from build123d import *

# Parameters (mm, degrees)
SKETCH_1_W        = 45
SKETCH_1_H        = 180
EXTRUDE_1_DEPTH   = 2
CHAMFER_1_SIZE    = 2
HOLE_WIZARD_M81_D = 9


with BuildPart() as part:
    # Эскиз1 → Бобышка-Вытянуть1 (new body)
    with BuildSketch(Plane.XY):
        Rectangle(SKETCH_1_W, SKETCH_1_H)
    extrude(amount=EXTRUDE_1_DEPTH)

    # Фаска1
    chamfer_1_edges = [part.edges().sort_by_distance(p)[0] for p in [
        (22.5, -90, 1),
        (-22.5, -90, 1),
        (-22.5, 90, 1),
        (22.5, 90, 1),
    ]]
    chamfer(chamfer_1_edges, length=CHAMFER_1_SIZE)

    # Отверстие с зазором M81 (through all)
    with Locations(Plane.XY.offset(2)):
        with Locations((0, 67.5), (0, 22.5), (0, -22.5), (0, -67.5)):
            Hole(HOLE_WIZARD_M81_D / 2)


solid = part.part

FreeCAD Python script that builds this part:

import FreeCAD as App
import Part
import Sketcher


def edges_at(feature, points):
    """Names of the edges that pass closest to the given points."""
    edges = feature.Shape.Edges
    near = lambda p: min(range(len(edges)), key=lambda i: edges[i].distToShape(Part.Vertex(*p))[0])
    return sorted({f"Edge{near(p) + 1}" for p in points})

doc = App.newDocument("Part")
params = doc.addObject("Spreadsheet::Sheet", "Params")
for row, (alias, value) in enumerate([
    ("sketch1_width", "45 mm"),
    ("sketch1_height", "180 mm"),
    ("pad1_length", "2 mm"),
    ("chamfer_size", "2 mm"),
    ("sketch2_diameter", "9 mm"),
    ("hole_diameter", "9 mm"),
], start=1):
    params.set(f"A{row}", alias)
    params.set(f"B{row}", "=" + value)
    params.setAlias(f"B{row}", alias)

body = doc.addObject("PartDesign::Body", "Body")

# Sketch on XY plane
sketch1 = doc.addObject("Sketcher::SketchObject", "Sketch")
body.addObject(sketch1)
sketch1.AttachmentSupport = (doc.XY_Plane, [""])
sketch1.MapMode = "FlatFace"
sketch1.addGeometry([
    Part.LineSegment(App.Vector(-22.5, 90, 0), App.Vector(-22.5, -90, 0)),
    Part.LineSegment(App.Vector(-22.5, -90, 0), App.Vector(22.5, -90, 0)),
    Part.LineSegment(App.Vector(22.5, -90, 0), App.Vector(22.5, 90, 0)),
    Part.LineSegment(App.Vector(22.5, 90, 0), App.Vector(-22.5, 90, 0)),
], False)
sketch1.addConstraint([
    Sketcher.Constraint("Coincident", 0, 2, 1, 1),
    Sketcher.Constraint("Coincident", 1, 2, 2, 1),
    Sketcher.Constraint("Coincident", 2, 2, 3, 1),
    Sketcher.Constraint("Coincident", 3, 2, 0, 1),
    Sketcher.Constraint("Vertical", 0),
    Sketcher.Constraint("Horizontal", 1),
    Sketcher.Constraint("Vertical", 2),
    Sketcher.Constraint("Horizontal", 3),
    Sketcher.Constraint("Symmetric", 0, 2, 2, 2, -1, 1),
    Sketcher.Constraint("DistanceX", 1, 1, 1, 2, 45.0),
    Sketcher.Constraint("DistanceY", 0, 2, 0, 1, 180.0),
])
sketch1.setExpression("Constraints[9]", "Params.sketch1_width")
sketch1.setExpression("Constraints[10]", "Params.sketch1_height")
pad1 = doc.addObject("PartDesign::Pad", "Pad")
body.addObject(pad1)
pad1.Profile = sketch1
pad1.setExpression("Length", "Params.pad1_length")
doc.recompute()

chamfer = doc.addObject("PartDesign::Chamfer", "Chamfer")
body.addObject(chamfer)
chamfer.Base = (pad1, edges_at(pad1, [
    (22.5, -90, 1),
    (-22.5, -90, 1),
    (-22.5, 90, 1),
    (22.5, 90, 1),
]))
chamfer.setExpression("Size", "Params.chamfer_size")

# Sketch on XY plane
sketch2 = doc.addObject("Sketcher::SketchObject", "Sketch001")
body.addObject(sketch2)
sketch2.AttachmentSupport = (doc.XY_Plane, [""])
sketch2.MapMode = "FlatFace"
sketch2.AttachmentOffset = App.Placement(App.Vector(0, 0, 2), App.Rotation())
sketch2.addGeometry([
    Part.Circle(App.Vector(0, 67.5, 0), App.Vector(0, 0, 1), 4.5),
    Part.Circle(App.Vector(0, 22.5, 0), App.Vector(0, 0, 1), 4.5),
    Part.Circle(App.Vector(0, -22.5, 0), App.Vector(0, 0, 1), 4.5),
    Part.Circle(App.Vector(0, -67.5, 0), App.Vector(0, 0, 1), 4.5),
], False)
sketch2.addConstraint([
    Sketcher.Constraint("Equal", 0, 1),
    Sketcher.Constraint("Equal", 1, 2),
    Sketcher.Constraint("Equal", 2, 3),
    Sketcher.Constraint("Symmetric", 1, 3, 2, 3, -1, 1),
    Sketcher.Constraint("Symmetric", 0, 3, 3, 3, -1, 1),
    Sketcher.Constraint("PointOnObject", 0, 3, -2),
    Sketcher.Constraint("PointOnObject", 1, 3, -2),
    Sketcher.Constraint("Diameter", 0, 9.0),
    Sketcher.Constraint("DistanceY", 1, 3, 0, 3, 45.0),
    Sketcher.Constraint("DistanceY", 2, 3, 1, 3, 45.0),
])
sketch2.setExpression("Constraints[7]", "Params.sketch2_diameter")
doc.recompute()
hole = doc.addObject("PartDesign::Hole", "Hole")
body.addObject(hole)
hole.Profile = sketch2
hole.ThreadType = "None"
hole.setExpression("Diameter", "Params.hole_diameter")
hole.DepthType = "ThroughAll"

doc.recompute()
